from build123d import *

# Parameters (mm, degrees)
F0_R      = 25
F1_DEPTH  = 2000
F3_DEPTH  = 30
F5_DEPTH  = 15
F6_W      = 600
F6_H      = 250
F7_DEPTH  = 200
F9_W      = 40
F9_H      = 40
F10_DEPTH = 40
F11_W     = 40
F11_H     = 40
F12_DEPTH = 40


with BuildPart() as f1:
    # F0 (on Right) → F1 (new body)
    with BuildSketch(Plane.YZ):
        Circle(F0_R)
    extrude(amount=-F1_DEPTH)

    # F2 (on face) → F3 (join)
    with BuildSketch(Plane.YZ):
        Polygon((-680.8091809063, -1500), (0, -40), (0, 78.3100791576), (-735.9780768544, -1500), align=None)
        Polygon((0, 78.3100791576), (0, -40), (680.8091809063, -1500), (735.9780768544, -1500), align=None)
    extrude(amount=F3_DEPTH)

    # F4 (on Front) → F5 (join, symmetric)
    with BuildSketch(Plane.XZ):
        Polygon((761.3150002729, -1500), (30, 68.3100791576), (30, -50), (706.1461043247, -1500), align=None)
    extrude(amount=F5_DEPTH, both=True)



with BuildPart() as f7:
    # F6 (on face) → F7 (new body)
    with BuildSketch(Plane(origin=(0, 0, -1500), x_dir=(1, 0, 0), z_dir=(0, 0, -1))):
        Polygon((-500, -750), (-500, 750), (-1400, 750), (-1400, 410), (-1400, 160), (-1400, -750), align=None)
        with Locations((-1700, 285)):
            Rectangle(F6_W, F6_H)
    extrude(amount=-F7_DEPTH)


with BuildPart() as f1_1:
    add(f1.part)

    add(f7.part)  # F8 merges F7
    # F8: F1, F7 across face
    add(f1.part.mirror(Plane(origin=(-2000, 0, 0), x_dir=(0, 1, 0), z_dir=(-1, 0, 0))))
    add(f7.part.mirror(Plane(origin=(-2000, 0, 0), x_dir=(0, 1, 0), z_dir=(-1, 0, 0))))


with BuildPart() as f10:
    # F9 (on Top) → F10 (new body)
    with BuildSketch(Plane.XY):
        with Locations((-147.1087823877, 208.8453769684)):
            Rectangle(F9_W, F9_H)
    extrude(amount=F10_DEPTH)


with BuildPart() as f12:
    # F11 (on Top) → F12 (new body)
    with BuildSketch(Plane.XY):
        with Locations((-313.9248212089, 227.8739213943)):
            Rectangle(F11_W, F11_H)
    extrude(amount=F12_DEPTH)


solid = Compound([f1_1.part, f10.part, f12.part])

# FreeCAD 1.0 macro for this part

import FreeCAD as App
import Part
import Sketcher

V = App.Vector
Q = App.Units.Quantity


def add_polygon(sketch, points):
    """Adds a closed chain of lines whose ends are joined by coincident constraints."""
    first, n = sketch.GeometryCount, len(points)
    for a, b in zip(points, points[1:] + points[:1]):
        sketch.addGeometry(Part.LineSegment(App.Vector(*a, 0), App.Vector(*b, 0)), False)
    for i in range(n):
        sketch.addConstraint(Sketcher.Constraint("Coincident", first + i, 2, first + (i + 1) % n, 1))

doc = App.newDocument("Part")
body = doc.addObject("PartDesign::Body", "Body")

sketch1 = body.newObject("Sketcher::SketchObject", "Sketch")
sketch1.AttachmentSupport = (doc.getObject("YZ_Plane"), [""])
sketch1.MapMode = "FlatFace"
sketch1.addGeometry(Part.Circle(V(0, 0, 0), V(0, 0, 1), 25), False)
sketch1.addConstraint([
    Sketcher.Constraint("Coincident", 0, 3, -1, 1),
    Sketcher.Constraint("Diameter", 0, Q("50 mm")),
])
pad1 = body.newObject("PartDesign::Pad", "Pad")
pad1.Profile = sketch1
pad1.Length = 2000
pad1.Reversed = True

sketch2 = body.newObject("Sketcher::SketchObject", "Sketch001")
sketch2.AttachmentSupport = (doc.getObject("YZ_Plane"), [""])
sketch2.MapMode = "FlatFace"
add_polygon(sketch2, [(-681, -1500), (0, -40), (681, -1500), (736, -1500), (0, 78), (-736, -1500)])
sketch2.addConstraint([
    Sketcher.Constraint("Horizontal", 2),
    Sketcher.Constraint("Horizontal", 5),
    Sketcher.Constraint("Symmetric", 2, 2, 4, 2, -2),
    Sketcher.Constraint("PointOnObject", 0, 2, -2),
    Sketcher.Constraint("PointOnObject", 3, 2, -2),
    Sketcher.Constraint("Parallel", 1, 3),
    Sketcher.Constraint("Parallel", 0, 4),
    Sketcher.Constraint("Angle", 0, Q("65 deg")),
    Sketcher.Constraint("DistanceY", 0, 2, -1, 1, Q("40 mm")),
    Sketcher.Constraint("DistanceY", 1, 2, -1, 1, Q("1500 mm")),
    Sketcher.Constraint("Distance", 3, Q("1741.472491 mm")),
])
pad2 = body.newObject("PartDesign::Pad", "Pad001")
pad2.Profile = sketch2
pad2.Length = 30

sketch3 = body.newObject("Sketcher::SketchObject", "Sketch002")
sketch3.AttachmentSupport = (doc.getObject("XZ_Plane"), [""])
sketch3.MapMode = "FlatFace"
add_polygon(sketch3, [(761, -1500), (30, 68), (30, -50), (706, -1500)])
sketch3.addConstraint([
    Sketcher.Constraint("Vertical", 1),
    Sketcher.Constraint("Horizontal", 3),
    Sketcher.Constraint("Parallel", 0, 2),
    Sketcher.Constraint("Angle", 0, Q("115 deg")),
    Sketcher.Constraint("DistanceX", -1, 1, 0, 2, Q("30 mm")),
    Sketcher.Constraint("DistanceY", 1, 2, -1, 1, Q("50 mm")),
    Sketcher.Constraint("DistanceY", 2, 2, -1, 1, Q("1500 mm")),
    Sketcher.Constraint("DistanceX", -1, 1, 3, 2, Q("761.315 mm")),
])
pad3 = body.newObject("PartDesign::Pad", "Pad002")
pad3.Profile = sketch3
pad3.Length = 30
pad3.Midplane = True
body2 = doc.addObject("PartDesign::Body", "Body001")

sketch4 = body2.newObject("Sketcher::SketchObject", "Sketch003")
sketch4.AttachmentSupport = (doc.getObject("XY_Plane001"), [""])
sketch4.MapMode = "FlatFace"
sketch4.AttachmentOffset = App.Placement(V(0, 0, -1500), App.Rotation())
add_polygon(sketch4, [(-500, 750), (-500, -750), (-1400, -750), (-1400, -410), (-2000, -410), (-2000, -160), (-1400, -160), (-1400, 750)])
sketch4.addConstraint([
    Sketcher.Constraint("Vertical", 0),
    Sketcher.Constraint("Horizontal", 1),
    Sketcher.Constraint("Vertical", 2),
    Sketcher.Constraint("Horizontal", 3),
    Sketcher.Constraint("Vertical", 4),
    Sketcher.Constraint("Horizontal", 5),
    Sketcher.Constraint("Vertical", 6),
    Sketcher.Constraint("Horizontal", 7),
    Sketcher.Constraint("Symmetric", 1, 2, 6, 2, -1),
    Sketcher.Constraint("DistanceX", 1, 2, 1, 1, Q("900 mm")),
    Sketcher.Constraint("DistanceX", 3, 2, 3, 1, Q("600 mm")),
    Sketcher.Constraint("DistanceY", 0, 2, 0, 1, Q("1500 mm")),
    Sketcher.Constraint("DistanceY", 2, 1, 2, 2, Q("340 mm")),
    Sketcher.Constraint("DistanceY", 4, 1, 4, 2, Q("250 mm")),
    Sketcher.Constraint("DistanceX", 0, 2, -1, 1, Q("500 mm")),
])
pad4 = body2.newObject("PartDesign::Pad", "Pad003")
pad4.Profile = sketch4
pad4.Length = 200
body3 = doc.addObject("PartDesign::Body", "Body002")
body3.AllowCompound = True
doc.recompute()

body3.BaseFeature = body
doc.recompute()

body4 = doc.addObject("PartDesign::Body", "Body003")
body4.BaseFeature = body2
boolean = body3.newObject("PartDesign::Boolean", "Boolean")
boolean.Type = "Fuse"
boolean.addObjects([body4])
doc.recompute()

mirroring = doc.addObject("Part::Mirroring", "Mirroring")
mirroring.Source = body
mirroring.Base = V(-2000, 0, 0)
mirroring.Normal = V(-1, 0, 0)
body5 = doc.addObject("PartDesign::Body", "Body004")
body5.BaseFeature = mirroring
boolean2 = body3.newObject("PartDesign::Boolean", "Boolean001")
boolean2.Type = "Fuse"
boolean2.addObjects([body5])
doc.recompute()

mirroring2 = doc.addObject("Part::Mirroring", "Mirroring001")
mirroring2.Source = body2
mirroring2.Base = V(-2000, 0, 0)
mirroring2.Normal = V(-1, 0, 0)
body6 = doc.addObject("PartDesign::Body", "Body005")
body6.BaseFeature = mirroring2
boolean3 = body3.newObject("PartDesign::Boolean", "Boolean002")
boolean3.Type = "Fuse"
boolean3.addObjects([body6])
doc.recompute()
body7 = doc.addObject("PartDesign::Body", "Body006")

sketch5 = body7.newObject("Sketcher::SketchObject", "Sketch004")
sketch5.AttachmentSupport = (doc.getObject("XY_Plane006"), [""])
sketch5.MapMode = "FlatFace"
add_polygon(sketch5, [(-167, 229), (-167, 189), (-127, 189), (-127, 229)])
sketch5.addConstraint([
    Sketcher.Constraint("Vertical", 0),
    Sketcher.Constraint("Horizontal", 1),
    Sketcher.Constraint("Vertical", 2),
    Sketcher.Constraint("Horizontal", 3),
    Sketcher.Constraint("Equal", 3, 0),
    Sketcher.Constraint("DistanceX", 1, 1, 1, 2, Q("40 mm")),
    Sketcher.Constraint("DistanceX", 0, 2, -1, 1, Q("167.108782 mm")),
    Sketcher.Constraint("DistanceY", -1, 1, 0, 2, Q("188.845377 mm")),
])
pad5 = body7.newObject("PartDesign::Pad", "Pad004")
pad5.Profile = sketch5
pad5.Length = 40
body8 = doc.addObject("PartDesign::Body", "Body007")

sketch6 = body8.newObject("Sketcher::SketchObject", "Sketch005")
sketch6.AttachmentSupport = (doc.getObject("XY_Plane007"), [""])
sketch6.MapMode = "FlatFace"
add_polygon(sketch6, [(-334, 248), (-334, 208), (-294, 208), (-294, 248)])
sketch6.addConstraint([
    Sketcher.Constraint("Vertical", 0),
    Sketcher.Constraint("Horizontal", 1),
    Sketcher.Constraint("Vertical", 2),
    Sketcher.Constraint("Horizontal", 3),
    Sketcher.Constraint("Equal", 3, 0),
    Sketcher.Constraint("DistanceX", 1, 1, 1, 2, Q("40 mm")),
    Sketcher.Constraint("DistanceX", 0, 2, -1, 1, Q("333.924821 mm")),
    Sketcher.Constraint("DistanceY", -1, 1, 0, 2, Q("207.873921 mm")),
])
pad6 = body8.newObject("PartDesign::Pad", "Pad005")
pad6.Profile = sketch6
pad6.Length = 40
mirroring.Visibility = False
mirroring2.Visibility = False

doc.recompute()
